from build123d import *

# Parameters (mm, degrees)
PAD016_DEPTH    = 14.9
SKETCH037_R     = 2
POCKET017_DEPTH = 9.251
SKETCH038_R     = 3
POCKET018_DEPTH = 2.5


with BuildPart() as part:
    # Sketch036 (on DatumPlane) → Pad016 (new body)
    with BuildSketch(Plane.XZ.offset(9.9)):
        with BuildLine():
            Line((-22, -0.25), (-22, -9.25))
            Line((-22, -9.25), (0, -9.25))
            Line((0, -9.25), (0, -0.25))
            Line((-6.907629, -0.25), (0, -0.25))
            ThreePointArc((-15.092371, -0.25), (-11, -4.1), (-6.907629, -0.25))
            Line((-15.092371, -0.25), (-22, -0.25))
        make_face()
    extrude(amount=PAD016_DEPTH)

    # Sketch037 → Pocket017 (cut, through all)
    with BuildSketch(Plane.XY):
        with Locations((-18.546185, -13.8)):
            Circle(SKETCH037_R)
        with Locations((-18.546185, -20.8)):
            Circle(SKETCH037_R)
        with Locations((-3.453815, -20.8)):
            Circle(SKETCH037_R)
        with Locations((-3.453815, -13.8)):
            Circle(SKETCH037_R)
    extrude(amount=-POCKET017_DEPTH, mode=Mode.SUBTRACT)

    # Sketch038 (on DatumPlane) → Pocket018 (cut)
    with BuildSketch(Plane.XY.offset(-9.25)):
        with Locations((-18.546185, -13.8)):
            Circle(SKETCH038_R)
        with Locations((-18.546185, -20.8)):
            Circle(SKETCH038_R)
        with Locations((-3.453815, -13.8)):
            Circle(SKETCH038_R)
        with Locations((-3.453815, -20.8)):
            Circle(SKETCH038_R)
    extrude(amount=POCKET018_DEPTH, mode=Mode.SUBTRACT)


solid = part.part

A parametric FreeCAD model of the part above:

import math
import FreeCAD as App
import Part
import Sketcher

V = App.Vector

doc = App.newDocument("Part")
body = doc.addObject("PartDesign::Body", "Body")

sketch1 = body.newObject("Sketcher::SketchObject", "Sketch")
sketch1.AttachmentSupport = (doc.getObject("XZ_Plane"), [""])
sketch1.MapMode = "FlatFace"
sketch1.AttachmentOffset = App.Placement(V(0, 0, 9.9), App.Rotation())
sketch1.addGeometry(Part.LineSegment(V(-22, -0.2, 0), V(-22, -9.2, 0)), False)
sketch1.addGeometry(Part.LineSegment(V(-22, -9.2, 0), V(0, -9.2, 0)), False)
sketch1.addGeometry(Part.LineSegment(V(0, -9.2, 0), V(0, -0.2, 0)), False)
sketch1.addGeometry(Part.LineSegment(V(0, -0.2, 0), V(-6.9, -0.2, 0)), False)
sketch1.addGeometry(Part.ArcOfCircle(Part.Circle(V(-11, 0, 0), V(0, 0, 1), 4.1), math.radians(-177), math.radians(-3)), False)
sketch1.addGeometry(Part.LineSegment(V(-15.1, -0.2, 0), V(-22, -0.2, 0)), False)
sketch1.addConstraint(Sketcher.Constraint("Coincident", 0, 2, 1, 1))
sketch1.addConstraint(Sketcher.Constraint("Coincident", 1, 2, 2, 1))
sketch1.addConstraint(Sketcher.Constraint("Coincident", 2, 2, 3, 1))
sketch1.addConstraint(Sketcher.Constraint("Coincident", 3, 2, 4, 2))
sketch1.addConstraint(Sketcher.Constraint("Coincident", 4, 1, 5, 1))
sketch1.addConstraint(Sketcher.Constraint("Coincident", 5, 2, 0, 1))
sketch1.addConstraint(Sketcher.Constraint("Vertical", 0))
sketch1.addConstraint(Sketcher.Constraint("Horizontal", 1))
sketch1.addConstraint(Sketcher.Constraint("Vertical", 2))
sketch1.addConstraint(Sketcher.Constraint("Horizontal", 3))
sketch1.addConstraint(Sketcher.Constraint("Horizontal", 5))
sketch1.addConstraint(Sketcher.Constraint("PointOnObject", 4, 3, -1))
sketch1.addConstraint(Sketcher.Constraint("PointOnObject", 1, 2, -2))
sketch1.addConstraint(Sketcher.Constraint("Horizontal", 3, 2, 4, 1))
sketch1.addConstraint(Sketcher.Constraint("Equal", 3, 5))
sketch1.addConstraint(Sketcher.Constraint("Radius", 4, 4.1))
sketch1.addConstraint(Sketcher.Constraint("DistanceX", 1, 1, 1, 2, 22.0))
sketch1.addConstraint(Sketcher.Constraint("DistanceY", 0, 2, 0, 1, 9.0))
sketch1.addConstraint(Sketcher.Constraint("DistanceY", 0, 2, -1, 1, 9.25))
pad1 = body.newObject("PartDesign::Pad", "Pad")
pad1.Profile = sketch1
pad1.Length = 14.9

sketch2 = body.newObject("Sketcher::SketchObject", "Sketch001")
sketch2.AttachmentSupport = (doc.getObject("XY_Plane"), [""])
sketch2.MapMode = "FlatFace"
sketch2.addGeometry(Part.Circle(V(-18.5, -13.8, 0), V(0, 0, 1), 2), False)
sketch2.addGeometry(Part.Circle(V(-18.5, -20.8, 0), V(0, 0, 1), 2), False)
sketch2.addGeometry(Part.Circle(V(-3.5, -20.8, 0), V(0, 0, 1), 2), False)
sketch2.addGeometry(Part.Circle(V(-3.5, -13.8, 0), V(0, 0, 1), 2), False)
sketch2.addConstraint(Sketcher.Constraint("Equal", 0, 1))
sketch2.addConstraint(Sketcher.Constraint("Equal", 1, 2))
sketch2.addConstraint(Sketcher.Constraint("Equal", 2, 3))
sketch2.addConstraint(Sketcher.Constraint("Horizontal", 1, 3, 2, 3))
sketch2.addConstraint(Sketcher.Constraint("Horizontal", 0, 3, 3, 3))
sketch2.addConstraint(Sketcher.Constraint("Vertical", 0, 3, 1, 3))
sketch2.addConstraint(Sketcher.Constraint("Vertical", 2, 3, 3, 3))
sketch2.addConstraint(Sketcher.Constraint("Diameter", 0, 4.0))
sketch2.addConstraint(Sketcher.Constraint("DistanceY", 1, 3, 0, 3, 7.0))
sketch2.addConstraint(Sketcher.Constraint("DistanceY", 0, 3, -1, 1, 13.8))
sketch2.addConstraint(Sketcher.Constraint("DistanceX", 1, 3, 2, 3, 15.09237))
sketch2.addConstraint(Sketcher.Constraint("DistanceX", 0, 3, -1, 1, 18.546185))
pocket1 = body.newObject("PartDesign::Pocket", "Pocket")
pocket1.Profile = sketch2
pocket1.Type = "ThroughAll"

sketch3 = body.newObject("Sketcher::SketchObject", "Sketch002")
sketch3.AttachmentSupport = (doc.getObject("XY_Plane"), [""])
sketch3.MapMode = "FlatFace"
sketch3.AttachmentOffset = App.Placement(V(0, 0, -9.25), App.Rotation())
sketch3.addGeometry(Part.Circle(V(-18.5, -13.8, 0), V(0, 0, 1), 3), False)
sketch3.addGeometry(Part.Circle(V(-18.5, -20.8, 0), V(0, 0, 1), 3), False)
sketch3.addGeometry(Part.Circle(V(-3.5, -13.8, 0), V(0, 0, 1), 3), False)
sketch3.addGeometry(Part.Circle(V(-3.5, -20.8, 0), V(0, 0, 1), 3), False)
sketch3.addConstraint(Sketcher.Constraint("Equal", 0, 1))
sketch3.addConstraint(Sketcher.Constraint("Equal", 1, 2))
sketch3.addConstraint(Sketcher.Constraint("Equal", 2, 3))
sketch3.addConstraint(Sketcher.Constraint("Horizontal", 0, 3, 2, 3))
sketch3.addConstraint(Sketcher.Constraint("Horizontal", 1, 3, 3, 3))
sketch3.addConstraint(Sketcher.Constraint("Vertical", 0, 3, 1, 3))
sketch3.addConstraint(Sketcher.Constraint("Vertical", 2, 3, 3, 3))
sketch3.addConstraint(Sketcher.Constraint("Diameter", 0, 6.0))
sketch3.addConstraint(Sketcher.Constraint("DistanceY", 1, 3, 0, 3, 7.0))
sketch3.addConstraint(Sketcher.Constraint("DistanceY", 0, 3, -1, 1, 13.8))
sketch3.addConstraint(Sketcher.Constraint("DistanceX", 0, 3, 2, 3, 15.09237))
sketch3.addConstraint(Sketcher.Constraint("DistanceX", 0, 3, -1, 1, 18.546185))
pocket2 = body.newObject("PartDesign::Pocket", "Pocket001")
pocket2.Profile = sketch3
pocket2.Length = 2.5
pocket2.Reversed = True

doc.recompute()
